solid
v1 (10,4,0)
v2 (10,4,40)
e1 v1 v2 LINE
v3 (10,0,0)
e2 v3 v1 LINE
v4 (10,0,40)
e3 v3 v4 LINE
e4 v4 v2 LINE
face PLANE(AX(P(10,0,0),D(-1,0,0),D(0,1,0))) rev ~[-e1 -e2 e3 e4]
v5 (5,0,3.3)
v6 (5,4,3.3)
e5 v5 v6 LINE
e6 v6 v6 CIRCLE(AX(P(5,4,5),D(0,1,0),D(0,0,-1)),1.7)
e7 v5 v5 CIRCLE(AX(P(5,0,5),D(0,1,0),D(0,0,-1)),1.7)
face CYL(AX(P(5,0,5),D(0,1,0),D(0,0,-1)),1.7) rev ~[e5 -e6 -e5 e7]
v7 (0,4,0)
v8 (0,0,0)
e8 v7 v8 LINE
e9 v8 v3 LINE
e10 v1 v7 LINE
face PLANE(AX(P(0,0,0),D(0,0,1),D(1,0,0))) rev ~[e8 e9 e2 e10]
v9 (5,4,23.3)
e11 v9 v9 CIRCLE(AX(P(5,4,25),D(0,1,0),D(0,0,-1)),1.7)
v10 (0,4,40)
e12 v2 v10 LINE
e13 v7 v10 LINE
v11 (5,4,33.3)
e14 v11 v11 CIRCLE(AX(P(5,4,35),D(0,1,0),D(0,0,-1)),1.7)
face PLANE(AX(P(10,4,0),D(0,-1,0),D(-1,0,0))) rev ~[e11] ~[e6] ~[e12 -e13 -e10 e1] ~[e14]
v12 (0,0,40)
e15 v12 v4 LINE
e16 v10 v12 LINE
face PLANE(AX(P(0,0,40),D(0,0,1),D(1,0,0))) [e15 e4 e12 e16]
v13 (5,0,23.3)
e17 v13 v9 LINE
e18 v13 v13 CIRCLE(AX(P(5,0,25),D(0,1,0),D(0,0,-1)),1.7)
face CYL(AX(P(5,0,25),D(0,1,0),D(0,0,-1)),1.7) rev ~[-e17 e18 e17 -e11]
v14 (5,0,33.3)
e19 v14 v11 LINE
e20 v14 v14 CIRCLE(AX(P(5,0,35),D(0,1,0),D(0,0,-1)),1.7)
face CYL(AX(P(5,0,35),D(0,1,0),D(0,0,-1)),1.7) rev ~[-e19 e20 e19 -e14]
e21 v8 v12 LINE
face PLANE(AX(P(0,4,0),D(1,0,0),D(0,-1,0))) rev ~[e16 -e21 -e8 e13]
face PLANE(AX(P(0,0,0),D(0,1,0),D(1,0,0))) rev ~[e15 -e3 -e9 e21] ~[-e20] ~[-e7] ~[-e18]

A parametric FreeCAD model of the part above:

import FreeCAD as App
import Part
import Sketcher

V = App.Vector
Q = App.Units.Quantity


def add_polygon(sketch, points):
    """Adds a closed chain of lines whose ends are joined by coincident constraints."""
    first, n = sketch.GeometryCount, len(points)
    for a, b in zip(points, points[1:] + points[:1]):
        sketch.addGeometry(Part.LineSegment(App.Vector(*a, 0), App.Vector(*b, 0)), False)
    for i in range(n):
        sketch.addConstraint(Sketcher.Constraint("Coincident", first + i, 2, first + (i + 1) % n, 1))

doc = App.newDocument("Part")
body = doc.addObject("PartDesign::Body", "Body")

# Sketch on XY plane
sketch1 = doc.addObject("Sketcher::SketchObject", "Sketch")
body.addObject(sketch1)
sketch1.AttachmentSupport = (doc.XY_Plane, [""])
sketch1.MapMode = "FlatFace"
add_polygon(sketch1, [(0, 4), (0, 0), (10, 0), (10, 4)])  # lines 0-3
sketch1.addConstraint([
    Sketcher.Constraint("Vertical", 0),
    Sketcher.Constraint("Horizontal", 1),
    Sketcher.Constraint("Vertical", 2),
    Sketcher.Constraint("Horizontal", 3),
    Sketcher.Constraint("Coincident", 0, 2, -1, 1),
    Sketcher.Constraint("DistanceX", 1, 1, 1, 2, Q("10 mm")),
    Sketcher.Constraint("DistanceY", 0, 2, 0, 1, Q("4 mm")),
])
pad1 = doc.addObject("PartDesign::Pad", "Pad")
body.addObject(pad1)
pad1.Profile = sketch1
pad1.Length = 40

# Sketch on XZ plane
sketch2 = doc.addObject("Sketcher::SketchObject", "Sketch001")
body.addObject(sketch2)
sketch2.AttachmentSupport = (doc.XZ_Plane, [""])
sketch2.MapMode = "FlatFace"
sketch2.addGeometry([
    Part.Circle(V(5, 5, 0), V(0, 0, 1), 1.7),
    Part.Circle(V(5, 35, 0), V(0, 0, 1), 1.7),
    Part.Circle(V(5, 25, 0), V(0, 0, 1), 1.7),
], False)
sketch2.addConstraint([
    Sketcher.Constraint("Equal", 0, 1),
    Sketcher.Constraint("Equal", 1, 2),
    Sketcher.Constraint("Vertical", 0, 3, 1, 3),
    Sketcher.Constraint("Vertical", 1, 3, 2, 3),
    Sketcher.Constraint("Diameter", 0, Q("3.4 mm")),
    Sketcher.Constraint("DistanceX", -1, 1, 0, 3, Q("5 mm")),
    Sketcher.Constraint("DistanceY", -1, 1, 0, 3, Q("5 mm")),
    Sketcher.Constraint("DistanceY", -1, 1, 1, 3, Q("35 mm")),
    Sketcher.Constraint("DistanceY", -1, 1, 2, 3, Q("25 mm")),
])
doc.recompute()
hole = doc.addObject("PartDesign::Hole", "Hole")
body.addObject(hole)
hole.Profile = sketch2
hole.ThreadType = "None"
hole.Diameter = 3.4
hole.DepthType = "ThroughAll"

doc.recompute()
